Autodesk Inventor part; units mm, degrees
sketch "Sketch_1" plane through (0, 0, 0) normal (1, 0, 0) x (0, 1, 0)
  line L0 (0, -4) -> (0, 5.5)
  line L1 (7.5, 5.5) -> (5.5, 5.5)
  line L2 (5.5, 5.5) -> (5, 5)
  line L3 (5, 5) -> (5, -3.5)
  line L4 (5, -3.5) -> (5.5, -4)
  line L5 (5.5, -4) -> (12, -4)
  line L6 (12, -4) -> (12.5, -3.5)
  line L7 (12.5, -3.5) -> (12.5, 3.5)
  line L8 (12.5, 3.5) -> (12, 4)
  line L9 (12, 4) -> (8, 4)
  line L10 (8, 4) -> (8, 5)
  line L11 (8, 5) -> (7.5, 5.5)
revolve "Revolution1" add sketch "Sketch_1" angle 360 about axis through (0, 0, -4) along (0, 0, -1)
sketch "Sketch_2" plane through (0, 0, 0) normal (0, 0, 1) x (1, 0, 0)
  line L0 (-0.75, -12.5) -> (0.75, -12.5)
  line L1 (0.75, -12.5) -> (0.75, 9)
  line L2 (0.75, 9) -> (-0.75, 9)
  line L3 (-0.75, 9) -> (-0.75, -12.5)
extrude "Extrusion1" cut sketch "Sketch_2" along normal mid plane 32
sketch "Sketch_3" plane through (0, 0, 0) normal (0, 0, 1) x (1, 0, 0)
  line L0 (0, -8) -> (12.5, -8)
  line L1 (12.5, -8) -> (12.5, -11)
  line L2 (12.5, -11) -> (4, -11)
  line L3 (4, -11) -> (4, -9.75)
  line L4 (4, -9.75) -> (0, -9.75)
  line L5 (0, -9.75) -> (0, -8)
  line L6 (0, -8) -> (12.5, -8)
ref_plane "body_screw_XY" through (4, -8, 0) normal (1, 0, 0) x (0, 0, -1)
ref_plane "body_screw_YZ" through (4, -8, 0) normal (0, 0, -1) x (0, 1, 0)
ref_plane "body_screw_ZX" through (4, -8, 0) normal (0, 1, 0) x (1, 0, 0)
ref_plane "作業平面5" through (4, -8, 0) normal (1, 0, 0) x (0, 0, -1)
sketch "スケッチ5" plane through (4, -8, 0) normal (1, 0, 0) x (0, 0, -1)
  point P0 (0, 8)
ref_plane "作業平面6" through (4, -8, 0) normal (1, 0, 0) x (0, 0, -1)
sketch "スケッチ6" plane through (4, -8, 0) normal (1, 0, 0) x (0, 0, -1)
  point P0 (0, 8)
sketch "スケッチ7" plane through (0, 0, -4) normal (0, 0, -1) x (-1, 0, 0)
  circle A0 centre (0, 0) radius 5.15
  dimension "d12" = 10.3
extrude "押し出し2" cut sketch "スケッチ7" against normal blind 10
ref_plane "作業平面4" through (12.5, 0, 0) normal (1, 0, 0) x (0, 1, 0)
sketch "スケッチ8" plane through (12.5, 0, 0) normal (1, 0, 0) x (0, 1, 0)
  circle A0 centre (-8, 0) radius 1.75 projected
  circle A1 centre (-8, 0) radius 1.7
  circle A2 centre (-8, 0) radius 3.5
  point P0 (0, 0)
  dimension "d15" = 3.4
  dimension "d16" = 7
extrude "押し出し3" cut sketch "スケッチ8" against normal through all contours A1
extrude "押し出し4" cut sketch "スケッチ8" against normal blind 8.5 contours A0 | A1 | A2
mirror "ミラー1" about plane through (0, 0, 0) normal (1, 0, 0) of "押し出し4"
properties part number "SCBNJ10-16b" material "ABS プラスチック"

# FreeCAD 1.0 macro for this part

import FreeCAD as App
import Part
import Sketcher

V = App.Vector
Q = App.Units.Quantity

doc = App.newDocument("Part")
body = doc.addObject("PartDesign::Body", "Body")

# Sketch on YZ plane
sketch1 = body.newObject("Sketcher::SketchObject", "Sketch")
sketch1.AttachmentSupport = (doc.getObject("YZ_Plane"), [""])
sketch1.MapMode = "FlatFace"
sketch1.addGeometry([
    Part.LineSegment(V(8, 5, 0), V(7.5, 5.5, 0)),  # 0
    Part.LineSegment(V(7.5, 5.5, 0), V(5.5, 5.5, 0)),  # 1
    Part.LineSegment(V(5.5, 5.5, 0), V(5, 5, 0)),  # 2
    Part.LineSegment(V(5, 5, 0), V(5, -3.5, 0)),  # 3
    Part.LineSegment(V(5, -3.5, 0), V(5.5, -4, 0)),  # 4
    Part.LineSegment(V(5.5, -4, 0), V(12, -4, 0)),  # 5
    Part.LineSegment(V(12, -4, 0), V(12.5, -3.5, 0)),  # 6
    Part.LineSegment(V(12.5, -3.5, 0), V(12.5, 3.5, 0)),  # 7
    Part.LineSegment(V(12.5, 3.5, 0), V(12, 4, 0)),  # 8
    Part.LineSegment(V(12, 4, 0), V(8, 4, 0)),  # 9
    Part.LineSegment(V(8, 4, 0), V(8, 5, 0)),  # 10
], False)
sketch1.addConstraint([
    Sketcher.Constraint("Coincident", 0, 2, 1, 1),
    Sketcher.Constraint("Coincident", 1, 2, 2, 1),
    Sketcher.Constraint("Coincident", 2, 2, 3, 1),
    Sketcher.Constraint("Coincident", 3, 2, 4, 1),
    Sketcher.Constraint("Coincident", 4, 2, 5, 1),
    Sketcher.Constraint("Coincident", 5, 2, 6, 1),
    Sketcher.Constraint("Coincident", 6, 2, 7, 1),
    Sketcher.Constraint("Coincident", 7, 2, 8, 1),
    Sketcher.Constraint("Coincident", 8, 2, 9, 1),
    Sketcher.Constraint("Coincident", 9, 2, 10, 1),
    Sketcher.Constraint("Coincident", 10, 2, 0, 1),
    Sketcher.Constraint("Horizontal", 1),
    Sketcher.Constraint("Vertical", 3),
    Sketcher.Constraint("Horizontal", 5),
    Sketcher.Constraint("Vertical", 7),
    Sketcher.Constraint("Horizontal", 9),
    Sketcher.Constraint("Vertical", 10),
    Sketcher.Constraint("Symmetric", 5, 2, 8, 2, -1),
    Sketcher.Constraint("Perpendicular", 0, 2),
    Sketcher.Constraint("Perpendicular", 2, 4),
    Sketcher.Constraint("Perpendicular", 4, 6),
    Sketcher.Constraint("Perpendicular", 6, 8),
    Sketcher.Constraint("Horizontal", 3, 2, 6, 2),
    Sketcher.Constraint("Horizontal", 2, 2, 10, 2),
    Sketcher.Constraint("Vertical", 1, 2, 4, 2),
    Sketcher.Constraint("Equal", 0, 2),
    Sketcher.Constraint("DistanceX", 1, 2, 1, 1, Q("2 mm")),
    Sketcher.Constraint("DistanceX", 9, 2, 9, 1, Q("4 mm")),
    Sketcher.Constraint("DistanceY", 7, 1, 7, 2, Q("7 mm")),
    Sketcher.Constraint("DistanceY", 10, 1, 10, 2, Q("1 mm")),
    Sketcher.Constraint("DistanceX", 5, 1, 5, 2, Q("6.5 mm")),
    Sketcher.Constraint("DistanceX", -1, 1, 2, 2, Q("5 mm")),
])
revolution = body.newObject("PartDesign::Revolution", "Revolution")
revolution.Profile = sketch1
revolution.ReferenceAxis = (sketch1, ["V_Axis"])
revolution.Angle = 360

# Sketch on XY plane
sketch2 = body.newObject("Sketcher::SketchObject", "Sketch001")
sketch2.AttachmentSupport = (doc.getObject("XY_Plane"), [""])
sketch2.MapMode = "FlatFace"
sketch2.addGeometry([
    Part.LineSegment(V(-0.8, 9, 0), V(-0.8, -12.5, 0)),
    Part.LineSegment(V(-0.8, -12.5, 0), V(0.8, -12.5, 0)),
    Part.LineSegment(V(0.8, -12.5, 0), V(0.8, 9, 0)),
    Part.LineSegment(V(0.8, 9, 0), V(-0.8, 9, 0)),
], False)
sketch2.addConstraint([
    Sketcher.Constraint("Coincident", 0, 2, 1, 1),
    Sketcher.Constraint("Coincident", 1, 2, 2, 1),
    Sketcher.Constraint("Coincident", 2, 2, 3, 1),
    Sketcher.Constraint("Coincident", 3, 2, 0, 1),
    Sketcher.Constraint("Vertical", 0),
    Sketcher.Constraint("Horizontal", 1),
    Sketcher.Constraint("Vertical", 2),
    Sketcher.Constraint("Horizontal", 3),
    Sketcher.Constraint("DistanceX", 1, 1, 1, 2, Q("1.5 mm")),
    Sketcher.Constraint("DistanceY", 0, 2, 0, 1, Q("21.5 mm")),
    Sketcher.Constraint("DistanceY", -1, 1, 2, 2, Q("9 mm")),
    Sketcher.Constraint("DistanceX", 0, 2, -1, 1, Q("0.75 mm")),
])
pocket1 = body.newObject("PartDesign::Pocket", "Pocket")
pocket1.Profile = sketch2
pocket1.Length = 32
pocket1.Midplane = True

# Sketch on XY plane
sketch3 = body.newObject("Sketcher::SketchObject", "Sketch002")
sketch3.AttachmentSupport = (doc.getObject("XY_Plane"), [""])
sketch3.MapMode = "FlatFace"
sketch3.AttachmentOffset = App.Placement(V(0, 0, -4), App.Rotation())
sketch3.addGeometry(Part.Circle(V(0, 0, 0), V(0, 0, 1), 5), False)
sketch3.addConstraint([
    Sketcher.Constraint("Coincident", 0, 3, -1, 1),
    Sketcher.Constraint("Diameter", 0, Q("10.3 mm")),
])
pocket2 = body.newObject("PartDesign::Pocket", "Pocket001")
pocket2.Profile = sketch3
pocket2.Length = 10
pocket2.Reversed = True

# Sketch on YZ plane
sketch4 = body.newObject("Sketcher::SketchObject", "Sketch003")
sketch4.AttachmentSupport = (doc.getObject("YZ_Plane"), [""])
sketch4.MapMode = "FlatFace"
sketch4.AttachmentOffset = App.Placement(V(0, 0, 12.5), App.Rotation())
sketch4.addGeometry(Part.Circle(V(-8, 0, 0), V(0, 0, 1), 1.7), False)
sketch4.addConstraint([
    Sketcher.Constraint("PointOnObject", 0, 3, -1),
    Sketcher.Constraint("Diameter", 0, Q("3.4 mm")),
    Sketcher.Constraint("DistanceX", 0, 3, -1, 1, Q("8 mm")),
])
pocket3 = body.newObject("PartDesign::Pocket", "Pocket002")
pocket3.Profile = sketch4
pocket3.Type = "ThroughAll"

# Sketch on YZ plane
sketch5 = body.newObject("Sketcher::SketchObject", "Sketch004")
sketch5.AttachmentSupport = (doc.getObject("YZ_Plane"), [""])
sketch5.MapMode = "FlatFace"
sketch5.AttachmentOffset = App.Placement(V(0, 0, 12.5), App.Rotation())
sketch5.addGeometry(Part.Circle(V(-8, 0, 0), V(0, 0, 1), 3.5), False)
sketch5.addConstraint([
    Sketcher.Constraint("PointOnObject", 0, 3, -1),
    Sketcher.Constraint("Diameter", 0, Q("7 mm")),
    Sketcher.Constraint("DistanceX", 0, 3, -1, 1, Q("8 mm")),
])
pocket4 = body.newObject("PartDesign::Pocket", "Pocket003")
pocket4.Profile = sketch5
pocket4.Length = 8.5
doc.recompute()

mirrored = body.newObject("PartDesign::Mirrored", "Mirrored")
mirrored.Originals = [pocket4]
mirrored.MirrorPlane = (doc.getObject("YZ_Plane"), [""])
body.Tip = mirrored

doc.recompute()
